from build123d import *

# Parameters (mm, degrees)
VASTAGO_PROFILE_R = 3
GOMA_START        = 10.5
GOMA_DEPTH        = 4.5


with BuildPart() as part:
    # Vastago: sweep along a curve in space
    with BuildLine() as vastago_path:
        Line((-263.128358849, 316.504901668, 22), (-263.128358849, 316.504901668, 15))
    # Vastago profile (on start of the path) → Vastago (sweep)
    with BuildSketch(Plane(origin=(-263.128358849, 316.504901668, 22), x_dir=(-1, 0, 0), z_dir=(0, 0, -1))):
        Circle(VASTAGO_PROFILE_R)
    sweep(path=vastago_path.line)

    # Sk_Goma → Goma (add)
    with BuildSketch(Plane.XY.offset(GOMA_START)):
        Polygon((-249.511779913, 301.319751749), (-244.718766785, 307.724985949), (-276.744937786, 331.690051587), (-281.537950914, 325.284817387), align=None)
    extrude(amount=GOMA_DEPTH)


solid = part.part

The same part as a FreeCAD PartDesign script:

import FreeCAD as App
import Part
import Sketcher
from FreeCAD import Vector
Q = App.Units.Quantity


def add_polygon(sketch, points):
    """Adds a closed chain of lines whose ends are joined by coincident constraints."""
    first, n = sketch.GeometryCount, len(points)
    for a, b in zip(points, points[1:] + points[:1]):
        sketch.addGeometry(Part.LineSegment(App.Vector(*a, 0), App.Vector(*b, 0)), False)
    for i in range(n):
        sketch.addConstraint(Sketcher.Constraint("Coincident", first + i, 2, first + (i + 1) % n, 1))

doc = App.newDocument("Part")
body = doc.addObject("PartDesign::Body", "Body")

# Sketch on XY plane
sketch1 = body.newObject("Sketcher::SketchObject", "Sketch")
sketch1.AttachmentSupport = (doc.getObject("XY_Plane"), [""])
sketch1.MapMode = "FlatFace"
sketch1.AttachmentOffset = App.Placement(Vector(0, 0, 22), App.Rotation())
sketch1.addGeometry(Part.Circle(Vector(-263.128359, 316.504902, 0), Vector(0, 0, 1), 3), False)
sketch1.addConstraint([
    Sketcher.Constraint("Diameter", 0, Q("6 mm")),
    Sketcher.Constraint("DistanceY", -1, 1, 0, 3, Q("316.504902 mm")),
    Sketcher.Constraint("DistanceX", 0, 3, -1, 1, Q("263.128359 mm")),
])

# Sketch on XZ plane
sketch2 = body.newObject("Sketcher::SketchObject", "Sketch001")
sketch2.AttachmentSupport = (doc.getObject("XZ_Plane"), [""])
sketch2.MapMode = "FlatFace"
sketch2.AttachmentOffset = App.Placement(Vector(0, 0, -316.504902), App.Rotation())
sketch2.addGeometry(Part.LineSegment(Vector(-263.128359, 22, 0), Vector(-263.128359, 15, 0)), False)
sketch2.addConstraint([
    Sketcher.Constraint("Vertical", 0),
    Sketcher.Constraint("DistanceY", 0, 2, 0, 1, Q("7 mm")),
    Sketcher.Constraint("DistanceY", -1, 1, 0, 1, Q("22 mm")),
    Sketcher.Constraint("DistanceX", 0, 1, -1, 1, Q("263.128359 mm")),
])
doc.recompute()

additivepipe = body.newObject("PartDesign::AdditivePipe", "AdditivePipe")
additivepipe.Profile = sketch1
additivepipe.Spine = (sketch2, ["Edge1"])

# Sketch on XY plane
sketch3 = body.newObject("Sketcher::SketchObject", "Sketch002")
sketch3.AttachmentSupport = (doc.getObject("XY_Plane"), [""])
sketch3.MapMode = "FlatFace"
sketch3.AttachmentOffset = App.Placement(Vector(0, 0, 10.5), App.Rotation())
add_polygon(sketch3, [(-249.51178, 301.319752), (-244.718767, 307.724986), (-276.744938, 331.690052), (-281.537951, 325.284817)])  # lines 0-3
sketch3.addConstraint([
    Sketcher.Constraint("Perpendicular", 0, 1),
    Sketcher.Constraint("Perpendicular", 1, 2),
    Sketcher.Constraint("Perpendicular", 2, 3),
    Sketcher.Constraint("Distance", 0, Q("8 mm")),
    Sketcher.Constraint("Distance", 1, Q("40 mm")),
    Sketcher.Constraint("DistanceY", 3, 2, 1, 2, Q("30.3703 mm")),
    Sketcher.Constraint("DistanceY", -1, 1, 1, 2, Q("331.690052 mm")),
    Sketcher.Constraint("DistanceX", 2, 2, -1, 1, Q("281.537951 mm")),
])
pad1 = body.newObject("PartDesign::Pad", "Pad")
pad1.Profile = sketch3
pad1.Length = 4.5

doc.recompute()
